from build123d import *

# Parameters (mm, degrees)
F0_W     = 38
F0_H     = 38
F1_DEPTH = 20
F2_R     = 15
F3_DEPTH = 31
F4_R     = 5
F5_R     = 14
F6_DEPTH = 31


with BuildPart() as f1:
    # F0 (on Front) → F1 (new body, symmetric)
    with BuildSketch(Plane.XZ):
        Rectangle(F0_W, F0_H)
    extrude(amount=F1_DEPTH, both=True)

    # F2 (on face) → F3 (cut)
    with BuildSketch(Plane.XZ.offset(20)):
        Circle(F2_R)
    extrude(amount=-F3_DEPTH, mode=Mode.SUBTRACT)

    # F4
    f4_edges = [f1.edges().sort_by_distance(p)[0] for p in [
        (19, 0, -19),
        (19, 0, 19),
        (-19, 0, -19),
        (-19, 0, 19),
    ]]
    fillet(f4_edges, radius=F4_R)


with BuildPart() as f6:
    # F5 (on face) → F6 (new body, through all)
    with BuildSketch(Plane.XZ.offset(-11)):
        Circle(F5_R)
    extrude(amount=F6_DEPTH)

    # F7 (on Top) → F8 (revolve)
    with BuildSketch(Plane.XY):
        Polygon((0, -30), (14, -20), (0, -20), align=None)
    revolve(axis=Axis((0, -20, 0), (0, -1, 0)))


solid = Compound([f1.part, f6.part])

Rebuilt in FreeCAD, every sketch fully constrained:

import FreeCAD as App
import Part
import Sketcher
Q = App.Units.Quantity


def edges_at(feature, points):
    """Names of the edges that pass closest to the given points."""
    edges = feature.Shape.Edges
    near = lambda p: min(range(len(edges)), key=lambda i: edges[i].distToShape(Part.Vertex(*p))[0])
    return sorted({f"Edge{near(p) + 1}" for p in points})

doc = App.newDocument("Part")
body = doc.addObject("PartDesign::Body", "Body")

# Sketch on XZ plane
sketch1 = doc.addObject("Sketcher::SketchObject", "Sketch")
body.addObject(sketch1)
sketch1.AttachmentSupport = (doc.XZ_Plane, [""])
sketch1.MapMode = "FlatFace"
sketch1.addGeometry(Part.LineSegment(App.Vector(-19, 19, 0), App.Vector(-19, -19, 0)), False)
sketch1.addGeometry(Part.LineSegment(App.Vector(-19, -19, 0), App.Vector(19, -19, 0)), False)
sketch1.addGeometry(Part.LineSegment(App.Vector(19, -19, 0), App.Vector(19, 19, 0)), False)
sketch1.addGeometry(Part.LineSegment(App.Vector(19, 19, 0), App.Vector(-19, 19, 0)), False)
sketch1.addConstraint(Sketcher.Constraint("Coincident", 0, 2, 1, 1))
sketch1.addConstraint(Sketcher.Constraint("Coincident", 1, 2, 2, 1))
sketch1.addConstraint(Sketcher.Constraint("Coincident", 2, 2, 3, 1))
sketch1.addConstraint(Sketcher.Constraint("Coincident", 3, 2, 0, 1))
sketch1.addConstraint(Sketcher.Constraint("Vertical", 0))
sketch1.addConstraint(Sketcher.Constraint("Horizontal", 1))
sketch1.addConstraint(Sketcher.Constraint("Vertical", 2))
sketch1.addConstraint(Sketcher.Constraint("Horizontal", 3))
sketch1.addConstraint(Sketcher.Constraint("Symmetric", 0, 2, 2, 2, -1, 1))
sketch1.addConstraint(Sketcher.Constraint("Equal", 3, 0))
sketch1.addConstraint(Sketcher.Constraint("DistanceX", 1, 1, 1, 2, Q("38 mm")))
pad1 = doc.addObject("PartDesign::Pad", "Pad")
body.addObject(pad1)
pad1.Profile = sketch1
pad1.Length = 40
pad1.Midplane = True

# Sketch on XZ plane
sketch2 = doc.addObject("Sketcher::SketchObject", "Sketch001")
body.addObject(sketch2)
sketch2.AttachmentSupport = (doc.XZ_Plane, [""])
sketch2.MapMode = "FlatFace"
sketch2.AttachmentOffset = App.Placement(App.Vector(0, 0, 20), App.Rotation())
sketch2.addGeometry(Part.Circle(App.Vector(0, 0, 0), App.Vector(0, 0, 1), 15), False)
sketch2.addConstraint(Sketcher.Constraint("Coincident", 0, 3, -1, 1))
sketch2.addConstraint(Sketcher.Constraint("Diameter", 0, Q("30 mm")))
pocket1 = doc.addObject("PartDesign::Pocket", "Pocket")
body.addObject(pocket1)
pocket1.Profile = sketch2
pocket1.Length = 31
doc.recompute()

fillet = doc.addObject("PartDesign::Fillet", "Fillet")
body.addObject(fillet)
fillet.Base = (pocket1, edges_at(pocket1, [
    (19, 0, -19),
    (19, 0, 19),
    (-19, 0, -19),
    (-19, 0, 19),
]))
fillet.Radius = 5
body2 = doc.addObject("PartDesign::Body", "Body001")

# Sketch on XZ plane
sketch3 = doc.addObject("Sketcher::SketchObject", "Sketch002")
body2.addObject(sketch3)
sketch3.AttachmentSupport = (doc.getObject("XZ_Plane001"), [""])
sketch3.MapMode = "FlatFace"
sketch3.AttachmentOffset = App.Placement(App.Vector(0, 0, -11), App.Rotation())
sketch3.addGeometry(Part.Circle(App.Vector(0, 0, 0), App.Vector(0, 0, 1), 14), False)
sketch3.addConstraint(Sketcher.Constraint("Coincident", 0, 3, -1, 1))
sketch3.addConstraint(Sketcher.Constraint("Diameter", 0, Q("28 mm")))
pad2 = doc.addObject("PartDesign::Pad", "Pad001")
body2.addObject(pad2)
pad2.Profile = sketch3
pad2.Length = 31

# Sketch on XY plane
sketch4 = doc.addObject("Sketcher::SketchObject", "Sketch003")
body2.addObject(sketch4)
sketch4.AttachmentSupport = (doc.getObject("XY_Plane001"), [""])
sketch4.MapMode = "FlatFace"
sketch4.addGeometry(Part.LineSegment(App.Vector(0, -30, 0), App.Vector(14, -20, 0)), False)
sketch4.addGeometry(Part.LineSegment(App.Vector(14, -20, 0), App.Vector(0, -20, 0)), False)
sketch4.addGeometry(Part.LineSegment(App.Vector(0, -20, 0), App.Vector(0, -30, 0)), False)
sketch4.addConstraint(Sketcher.Constraint("Coincident", 0, 2, 1, 1))
sketch4.addConstraint(Sketcher.Constraint("Coincident", 1, 2, 2, 1))
sketch4.addConstraint(Sketcher.Constraint("Coincident", 2, 2, 0, 1))
sketch4.addConstraint(Sketcher.Constraint("Horizontal", 1))
sketch4.addConstraint(Sketcher.Constraint("Vertical", 2))
sketch4.addConstraint(Sketcher.Constraint("PointOnObject", 1, 2, -2))
sketch4.addConstraint(Sketcher.Constraint("DistanceX", 1, 2, 1, 1, Q("14 mm")))
sketch4.addConstraint(Sketcher.Constraint("DistanceY", 2, 2, 2, 1, Q("10 mm")))
sketch4.addConstraint(Sketcher.Constraint("DistanceY", 0, 2, -1, 1, Q("20 mm")))
revolution = doc.addObject("PartDesign::Revolution", "Revolution")
body2.addObject(revolution)
revolution.Profile = sketch4
revolution.ReferenceAxis = (sketch4, ["V_Axis"])
revolution.Angle = 360

doc.recompute()
